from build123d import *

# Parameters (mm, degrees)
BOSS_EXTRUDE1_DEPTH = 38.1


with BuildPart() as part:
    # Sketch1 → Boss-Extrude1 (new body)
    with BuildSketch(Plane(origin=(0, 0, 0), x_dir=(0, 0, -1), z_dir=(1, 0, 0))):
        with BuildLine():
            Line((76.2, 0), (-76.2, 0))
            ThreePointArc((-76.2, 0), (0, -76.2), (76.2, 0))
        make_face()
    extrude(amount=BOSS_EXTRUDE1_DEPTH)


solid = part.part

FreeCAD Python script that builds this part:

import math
import FreeCAD as App
import Part
import Sketcher
Q = App.Units.Quantity

doc = App.newDocument("Part")
params = doc.addObject("Spreadsheet::Sheet", "Params")
for row, (alias, value) in enumerate([
    ("sketch1_radius", "3 in"),
    ("pad1_length", "1.5 in"),
], start=1):
    params.set(f"A{row}", alias)
    params.set(f"B{row}", "=" + value)
    params.setAlias(f"B{row}", alias)

body = doc.addObject("PartDesign::Body", "Body")

sketch1 = body.newObject("Sketcher::SketchObject", "Sketch")
sketch1.AttachmentSupport = (doc.getObject("YZ_Plane"), [""])
sketch1.MapMode = "FlatFace"
sketch1.addGeometry(Part.LineSegment(App.Vector(0, -76, 0), App.Vector(0, 76, 0)), False)
sketch1.addGeometry(Part.ArcOfCircle(Part.Circle(App.Vector(0, 0, 0), App.Vector(0, 0, 1), 76), math.radians(90), math.radians(270)), False)
sketch1.addConstraint(Sketcher.Constraint("Coincident", 0, 1, 1, 2))
sketch1.addConstraint(Sketcher.Constraint("Coincident", 1, 1, 0, 2))
sketch1.addConstraint(Sketcher.Constraint("Vertical", 0))
sketch1.addConstraint(Sketcher.Constraint("Coincident", 1, 3, -1, 1))
sketch1.addConstraint(Sketcher.Constraint("PointOnObject", 0, 1, -2))
sketch1.addConstraint(Sketcher.Constraint("Radius", 1, Q("3 in")))
sketch1.setExpression("Constraints[5]", "Params.sketch1_radius")
pad1 = body.newObject("PartDesign::Pad", "Pad")
pad1.Profile = sketch1
pad1.setExpression("Length", "Params.pad1_length")

doc.recompute()
